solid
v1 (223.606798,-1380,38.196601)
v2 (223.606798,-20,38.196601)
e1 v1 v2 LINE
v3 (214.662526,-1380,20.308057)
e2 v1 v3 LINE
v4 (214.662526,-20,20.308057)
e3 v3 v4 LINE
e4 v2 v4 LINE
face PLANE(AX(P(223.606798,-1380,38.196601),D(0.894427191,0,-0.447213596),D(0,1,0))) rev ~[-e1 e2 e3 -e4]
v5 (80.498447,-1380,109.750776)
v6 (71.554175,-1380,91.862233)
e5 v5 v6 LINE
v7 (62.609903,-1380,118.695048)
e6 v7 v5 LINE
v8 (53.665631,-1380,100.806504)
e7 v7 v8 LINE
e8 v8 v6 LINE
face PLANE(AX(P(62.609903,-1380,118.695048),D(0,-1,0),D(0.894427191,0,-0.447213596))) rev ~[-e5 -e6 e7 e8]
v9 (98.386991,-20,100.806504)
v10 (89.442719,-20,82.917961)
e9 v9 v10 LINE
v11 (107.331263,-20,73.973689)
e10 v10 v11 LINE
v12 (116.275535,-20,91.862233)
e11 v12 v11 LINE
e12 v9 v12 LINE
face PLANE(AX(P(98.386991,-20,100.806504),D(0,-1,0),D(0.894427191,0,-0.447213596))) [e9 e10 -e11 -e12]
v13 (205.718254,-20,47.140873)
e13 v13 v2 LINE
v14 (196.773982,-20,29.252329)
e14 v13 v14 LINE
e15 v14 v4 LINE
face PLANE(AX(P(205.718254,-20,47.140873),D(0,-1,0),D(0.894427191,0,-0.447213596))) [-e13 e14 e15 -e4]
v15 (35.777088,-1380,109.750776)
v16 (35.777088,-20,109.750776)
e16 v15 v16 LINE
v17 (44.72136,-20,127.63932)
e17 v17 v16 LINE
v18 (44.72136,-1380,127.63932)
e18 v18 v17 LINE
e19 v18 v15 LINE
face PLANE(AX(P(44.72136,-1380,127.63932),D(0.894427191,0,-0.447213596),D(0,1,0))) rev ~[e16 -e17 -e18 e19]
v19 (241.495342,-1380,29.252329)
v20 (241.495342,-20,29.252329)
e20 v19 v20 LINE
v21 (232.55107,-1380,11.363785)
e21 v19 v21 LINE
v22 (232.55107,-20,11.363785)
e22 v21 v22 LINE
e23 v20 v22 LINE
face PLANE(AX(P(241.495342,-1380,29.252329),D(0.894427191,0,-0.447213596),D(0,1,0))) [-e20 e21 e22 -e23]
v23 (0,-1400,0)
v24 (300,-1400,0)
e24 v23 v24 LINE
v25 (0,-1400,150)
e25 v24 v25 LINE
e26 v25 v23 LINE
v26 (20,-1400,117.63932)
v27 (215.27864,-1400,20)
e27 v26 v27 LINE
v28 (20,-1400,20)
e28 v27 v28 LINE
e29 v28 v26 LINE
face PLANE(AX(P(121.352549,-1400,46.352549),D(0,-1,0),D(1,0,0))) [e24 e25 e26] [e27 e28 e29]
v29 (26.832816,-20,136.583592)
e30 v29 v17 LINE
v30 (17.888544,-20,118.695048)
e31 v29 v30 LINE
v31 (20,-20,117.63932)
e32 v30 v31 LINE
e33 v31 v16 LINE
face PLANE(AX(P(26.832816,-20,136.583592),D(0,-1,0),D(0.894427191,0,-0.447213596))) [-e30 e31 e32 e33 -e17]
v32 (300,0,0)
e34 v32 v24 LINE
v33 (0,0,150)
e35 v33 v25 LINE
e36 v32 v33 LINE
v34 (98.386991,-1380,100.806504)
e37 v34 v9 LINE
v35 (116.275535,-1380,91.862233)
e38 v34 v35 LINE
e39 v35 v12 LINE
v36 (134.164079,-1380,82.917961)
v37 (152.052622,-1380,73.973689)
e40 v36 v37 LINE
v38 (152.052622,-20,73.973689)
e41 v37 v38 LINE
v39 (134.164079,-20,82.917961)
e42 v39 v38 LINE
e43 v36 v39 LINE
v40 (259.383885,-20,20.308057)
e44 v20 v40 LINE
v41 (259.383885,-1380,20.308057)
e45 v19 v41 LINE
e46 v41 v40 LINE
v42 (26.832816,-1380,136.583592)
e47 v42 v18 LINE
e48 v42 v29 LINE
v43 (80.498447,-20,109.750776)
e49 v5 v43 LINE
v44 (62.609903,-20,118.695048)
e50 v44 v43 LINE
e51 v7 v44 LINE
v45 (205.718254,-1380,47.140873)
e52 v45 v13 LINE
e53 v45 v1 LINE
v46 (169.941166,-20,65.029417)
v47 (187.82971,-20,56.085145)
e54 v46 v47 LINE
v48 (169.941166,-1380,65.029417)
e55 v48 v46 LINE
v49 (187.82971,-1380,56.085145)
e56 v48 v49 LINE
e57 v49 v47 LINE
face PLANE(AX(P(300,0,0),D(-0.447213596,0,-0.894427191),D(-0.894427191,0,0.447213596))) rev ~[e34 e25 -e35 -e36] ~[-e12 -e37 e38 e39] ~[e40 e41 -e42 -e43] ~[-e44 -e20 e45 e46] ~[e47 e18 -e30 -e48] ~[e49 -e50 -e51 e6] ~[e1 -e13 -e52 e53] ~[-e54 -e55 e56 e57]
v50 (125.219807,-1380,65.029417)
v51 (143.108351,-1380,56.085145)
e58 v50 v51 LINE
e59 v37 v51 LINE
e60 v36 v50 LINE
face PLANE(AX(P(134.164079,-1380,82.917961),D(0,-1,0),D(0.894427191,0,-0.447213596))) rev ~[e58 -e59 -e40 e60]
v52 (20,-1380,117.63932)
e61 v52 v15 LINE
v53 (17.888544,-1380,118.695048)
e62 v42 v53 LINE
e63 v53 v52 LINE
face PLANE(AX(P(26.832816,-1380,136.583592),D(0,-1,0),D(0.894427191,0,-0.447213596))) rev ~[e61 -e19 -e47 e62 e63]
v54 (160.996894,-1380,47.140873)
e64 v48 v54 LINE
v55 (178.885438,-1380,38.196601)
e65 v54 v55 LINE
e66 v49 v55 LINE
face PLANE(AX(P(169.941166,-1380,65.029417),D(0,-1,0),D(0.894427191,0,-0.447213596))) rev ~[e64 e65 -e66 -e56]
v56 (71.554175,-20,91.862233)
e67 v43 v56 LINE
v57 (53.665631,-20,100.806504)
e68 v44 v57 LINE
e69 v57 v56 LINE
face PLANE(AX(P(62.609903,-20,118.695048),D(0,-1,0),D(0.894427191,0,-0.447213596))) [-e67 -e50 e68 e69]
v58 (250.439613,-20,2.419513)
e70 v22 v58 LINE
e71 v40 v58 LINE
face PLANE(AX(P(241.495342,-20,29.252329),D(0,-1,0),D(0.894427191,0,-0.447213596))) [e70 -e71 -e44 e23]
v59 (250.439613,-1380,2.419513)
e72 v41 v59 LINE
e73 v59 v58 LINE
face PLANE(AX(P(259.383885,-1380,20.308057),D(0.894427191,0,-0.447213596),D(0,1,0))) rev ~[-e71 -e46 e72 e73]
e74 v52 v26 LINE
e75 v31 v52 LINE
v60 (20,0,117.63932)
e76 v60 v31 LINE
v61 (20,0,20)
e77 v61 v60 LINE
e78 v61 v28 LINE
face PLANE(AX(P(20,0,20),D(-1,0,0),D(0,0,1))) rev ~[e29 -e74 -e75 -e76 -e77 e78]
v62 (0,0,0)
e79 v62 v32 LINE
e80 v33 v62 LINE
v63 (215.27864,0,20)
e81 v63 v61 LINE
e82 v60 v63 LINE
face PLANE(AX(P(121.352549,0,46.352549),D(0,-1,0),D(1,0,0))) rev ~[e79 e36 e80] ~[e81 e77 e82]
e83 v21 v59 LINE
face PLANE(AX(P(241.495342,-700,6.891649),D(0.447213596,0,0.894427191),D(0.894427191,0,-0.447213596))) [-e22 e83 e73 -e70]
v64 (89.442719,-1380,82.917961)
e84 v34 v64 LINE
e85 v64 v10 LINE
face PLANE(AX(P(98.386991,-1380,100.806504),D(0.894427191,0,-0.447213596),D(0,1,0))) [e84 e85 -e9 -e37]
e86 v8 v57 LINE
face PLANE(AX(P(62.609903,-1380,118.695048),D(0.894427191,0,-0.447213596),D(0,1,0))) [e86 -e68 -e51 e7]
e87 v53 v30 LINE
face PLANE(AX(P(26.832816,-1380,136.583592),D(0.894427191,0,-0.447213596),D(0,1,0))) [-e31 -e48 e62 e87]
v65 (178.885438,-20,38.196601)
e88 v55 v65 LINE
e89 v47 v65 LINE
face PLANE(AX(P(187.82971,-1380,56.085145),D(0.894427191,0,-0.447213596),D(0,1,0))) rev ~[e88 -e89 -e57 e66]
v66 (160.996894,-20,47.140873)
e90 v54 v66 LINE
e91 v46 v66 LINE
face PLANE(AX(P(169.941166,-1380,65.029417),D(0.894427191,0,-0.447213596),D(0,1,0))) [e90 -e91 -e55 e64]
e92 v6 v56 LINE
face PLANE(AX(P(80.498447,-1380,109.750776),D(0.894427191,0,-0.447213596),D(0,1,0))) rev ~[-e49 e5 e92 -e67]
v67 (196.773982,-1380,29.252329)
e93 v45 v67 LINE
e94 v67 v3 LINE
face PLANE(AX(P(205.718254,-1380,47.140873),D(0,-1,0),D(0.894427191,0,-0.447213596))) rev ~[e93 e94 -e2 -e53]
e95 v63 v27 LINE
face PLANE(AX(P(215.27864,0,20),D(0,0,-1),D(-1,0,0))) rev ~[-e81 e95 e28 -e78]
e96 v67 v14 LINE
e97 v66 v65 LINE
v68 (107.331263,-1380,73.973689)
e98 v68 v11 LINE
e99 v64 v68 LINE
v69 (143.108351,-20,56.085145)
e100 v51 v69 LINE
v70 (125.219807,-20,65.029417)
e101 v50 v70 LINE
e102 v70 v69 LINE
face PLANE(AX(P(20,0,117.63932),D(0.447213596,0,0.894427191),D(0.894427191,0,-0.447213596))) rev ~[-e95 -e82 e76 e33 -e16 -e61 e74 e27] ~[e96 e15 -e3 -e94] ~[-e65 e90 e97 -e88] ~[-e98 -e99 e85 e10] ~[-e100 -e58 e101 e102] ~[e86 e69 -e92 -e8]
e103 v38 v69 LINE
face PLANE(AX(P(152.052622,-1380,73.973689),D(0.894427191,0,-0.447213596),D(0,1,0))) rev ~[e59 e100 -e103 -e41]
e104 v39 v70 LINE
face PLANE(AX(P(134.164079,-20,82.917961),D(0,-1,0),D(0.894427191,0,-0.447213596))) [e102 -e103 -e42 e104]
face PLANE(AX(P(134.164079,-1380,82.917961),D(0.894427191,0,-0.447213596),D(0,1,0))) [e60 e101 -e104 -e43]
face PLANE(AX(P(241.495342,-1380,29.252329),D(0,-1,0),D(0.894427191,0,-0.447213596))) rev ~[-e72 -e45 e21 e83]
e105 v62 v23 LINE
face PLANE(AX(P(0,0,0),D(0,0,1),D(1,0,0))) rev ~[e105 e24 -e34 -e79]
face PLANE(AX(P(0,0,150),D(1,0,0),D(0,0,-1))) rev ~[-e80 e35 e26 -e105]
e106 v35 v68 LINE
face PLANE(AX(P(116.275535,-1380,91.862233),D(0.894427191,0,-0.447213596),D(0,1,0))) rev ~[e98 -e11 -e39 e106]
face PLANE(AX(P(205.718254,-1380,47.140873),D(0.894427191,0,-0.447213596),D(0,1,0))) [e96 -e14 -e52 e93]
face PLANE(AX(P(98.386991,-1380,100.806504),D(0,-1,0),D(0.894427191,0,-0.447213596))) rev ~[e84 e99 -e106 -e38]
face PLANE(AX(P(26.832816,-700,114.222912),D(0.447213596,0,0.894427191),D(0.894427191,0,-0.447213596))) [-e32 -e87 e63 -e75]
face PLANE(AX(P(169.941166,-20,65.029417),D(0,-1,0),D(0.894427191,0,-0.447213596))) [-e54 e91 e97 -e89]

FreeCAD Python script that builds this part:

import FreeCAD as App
import Part
import Sketcher

V = App.Vector

doc = App.newDocument("Part")
params = doc.addObject("Spreadsheet::Sheet", "Params")
for row, (alias, value) in enumerate([
    ("sketch1_width", "300 mm"),
    ("sketch1_height", "150 mm"),
    ("pad1_length", "1400 mm"),
    ("sketch2_width", "20 mm"),
    ("sketch2_height", "1359.999999 mm"),
    ("pocket1_length", "20 mm"),
], start=1):
    params.set(f"A{row}", alias)
    params.set(f"B{row}", "=" + value)
    params.setAlias(f"B{row}", alias)

body = doc.addObject("PartDesign::Body", "Body")

# Sketch on XZ plane
sketch1 = body.newObject("Sketcher::SketchObject", "Sketch")
sketch1.AttachmentSupport = (doc.getObject("XZ_Plane"), [""])
sketch1.MapMode = "FlatFace"
sketch1.addGeometry(Part.LineSegment(V(0, 150, 0), V(0, 0, 0)), False)
sketch1.addGeometry(Part.LineSegment(V(0, 0, 0), V(300, 0, 0)), False)
sketch1.addGeometry(Part.LineSegment(V(300, 0, 0), V(0, 150, 0)), False)
sketch1.addGeometry(Part.LineSegment(V(20, 117.63932, 0), V(215.27864, 20, 0)), False)
sketch1.addGeometry(Part.LineSegment(V(215.27864, 20, 0), V(20, 20, 0)), False)
sketch1.addGeometry(Part.LineSegment(V(20, 20, 0), V(20, 117.63932, 0)), False)
sketch1.addConstraint(Sketcher.Constraint("Coincident", 0, 2, 1, 1))
sketch1.addConstraint(Sketcher.Constraint("Coincident", 1, 2, 2, 1))
sketch1.addConstraint(Sketcher.Constraint("Coincident", 2, 2, 0, 1))
sketch1.addConstraint(Sketcher.Constraint("Coincident", 3, 2, 4, 1))
sketch1.addConstraint(Sketcher.Constraint("Coincident", 4, 2, 5, 1))
sketch1.addConstraint(Sketcher.Constraint("Coincident", 5, 2, 3, 1))
sketch1.addConstraint(Sketcher.Constraint("Vertical", 0))
sketch1.addConstraint(Sketcher.Constraint("Horizontal", 1))
sketch1.addConstraint(Sketcher.Constraint("Horizontal", 4))
sketch1.addConstraint(Sketcher.Constraint("Vertical", 5))
sketch1.addConstraint(Sketcher.Constraint("Coincident", 0, 2, -1, 1))
sketch1.addConstraint(Sketcher.Constraint("Parallel", 2, 3))
sketch1.addConstraint(Sketcher.Constraint("DistanceX", 1, 1, 1, 2, 300.0))
sketch1.addConstraint(Sketcher.Constraint("DistanceY", 0, 2, 0, 1, 150.0))
sketch1.addConstraint(Sketcher.Constraint("DistanceY", -1, 1, 3, 2, 20.0))
sketch1.addConstraint(Sketcher.Constraint("DistanceX", -1, 1, 4, 2, 20.0))
sketch1.addConstraint(Sketcher.Constraint("DistanceX", 4, 2, 4, 1, 195.27864))
sketch1.setExpression("Constraints[12]", "Params.sketch1_width")
sketch1.setExpression("Constraints[13]", "Params.sketch1_height")
pad1 = body.newObject("PartDesign::Pad", "Pad")
pad1.Profile = sketch1
pad1.setExpression("Length", "Params.pad1_length")

# Sketch on an angled plane
sketch2 = body.newObject("Sketcher::SketchObject", "Sketch001")
sketch2.Placement = App.Placement(V(60, 0, 120), App.Rotation(V(0.894427191, 0, -0.447213595), V(0, 1, 0), V(0.447213595, 0, 0.894427191), "ZXY"))
sketch2.addGeometry(Part.LineSegment(V(-37.082039, -20, 0), V(-37.082039, -1379.999999, 0)), False)
sketch2.addGeometry(Part.LineSegment(V(-37.082039, -1379.999999, 0), V(-17.082039, -1379.999999, 0)), False)
sketch2.addGeometry(Part.LineSegment(V(-17.082039, -1379.999999, 0), V(-17.082039, -20, 0)), False)
sketch2.addGeometry(Part.LineSegment(V(-17.082039, -20, 0), V(-37.082039, -20, 0)), False)
sketch2.addGeometry(Part.LineSegment(V(2.917961, -20, 0), V(2.917961, -1379.999999, 0)), False)
sketch2.addGeometry(Part.LineSegment(V(2.917961, -1379.999999, 0), V(22.917961, -1379.999999, 0)), False)
sketch2.addGeometry(Part.LineSegment(V(22.917961, -1379.999999, 0), V(22.917961, -20, 0)), False)
sketch2.addGeometry(Part.LineSegment(V(22.917961, -20, 0), V(2.917961, -20, 0)), False)
sketch2.addGeometry(Part.LineSegment(V(42.917961, -20, 0), V(42.917961, -1379.999999, 0)), False)
sketch2.addGeometry(Part.LineSegment(V(42.917961, -1379.999999, 0), V(62.917961, -1379.999999, 0)), False)
sketch2.addGeometry(Part.LineSegment(V(62.917961, -1379.999999, 0), V(62.917961, -20, 0)), False)
sketch2.addGeometry(Part.LineSegment(V(62.917961, -20, 0), V(42.917961, -20, 0)), False)
sketch2.addGeometry(Part.LineSegment(V(82.917961, -20, 0), V(82.917961, -1379.999999, 0)), False)
sketch2.addGeometry(Part.LineSegment(V(82.917961, -1379.999999, 0), V(102.917961, -1379.999999, 0)), False)
sketch2.addGeometry(Part.LineSegment(V(102.917961, -1379.999999, 0), V(102.917961, -20, 0)), False)
sketch2.addGeometry(Part.LineSegment(V(102.917961, -20, 0), V(82.917961, -20, 0)), False)
sketch2.addGeometry(Part.LineSegment(V(122.917961, -20, 0), V(122.917961, -1379.999999, 0)), False)
sketch2.addGeometry(Part.LineSegment(V(122.917961, -1379.999999, 0), V(142.917961, -1379.999999, 0)), False)
sketch2.addGeometry(Part.LineSegment(V(142.917961, -1379.999999, 0), V(142.917961, -20, 0)), False)
sketch2.addGeometry(Part.LineSegment(V(142.917961, -20, 0), V(122.917961, -20, 0)), False)
sketch2.addGeometry(Part.LineSegment(V(162.917961, -20, 0), V(162.917961, -1379.999999, 0)), False)
sketch2.addGeometry(Part.LineSegment(V(162.917961, -1379.999999, 0), V(182.917961, -1379.999999, 0)), False)
sketch2.addGeometry(Part.LineSegment(V(182.917961, -1379.999999, 0), V(182.917961, -20, 0)), False)
sketch2.addGeometry(Part.LineSegment(V(182.917961, -20, 0), V(162.917961, -20, 0)), False)
sketch2.addGeometry(Part.LineSegment(V(202.917961, -20, 0), V(202.917961, -1379.999999, 0)), False)
sketch2.addGeometry(Part.LineSegment(V(202.917961, -1379.999999, 0), V(222.917961, -1379.999999, 0)), False)
sketch2.addGeometry(Part.LineSegment(V(222.917961, -1379.999999, 0), V(222.917961, -20, 0)), False)
sketch2.addGeometry(Part.LineSegment(V(222.917961, -20, 0), V(202.917961, -20, 0)), False)
sketch2.addConstraint(Sketcher.Constraint("Coincident", 0, 2, 1, 1))
sketch2.addConstraint(Sketcher.Constraint("Coincident", 1, 2, 2, 1))
sketch2.addConstraint(Sketcher.Constraint("Coincident", 2, 2, 3, 1))
sketch2.addConstraint(Sketcher.Constraint("Coincident", 3, 2, 0, 1))
sketch2.addConstraint(Sketcher.Constraint("Coincident", 4, 2, 5, 1))
sketch2.addConstraint(Sketcher.Constraint("Coincident", 5, 2, 6, 1))
sketch2.addConstraint(Sketcher.Constraint("Coincident", 6, 2, 7, 1))
sketch2.addConstraint(Sketcher.Constraint("Coincident", 7, 2, 4, 1))
sketch2.addConstraint(Sketcher.Constraint("Coincident", 8, 2, 9, 1))
sketch2.addConstraint(Sketcher.Constraint("Coincident", 9, 2, 10, 1))
sketch2.addConstraint(Sketcher.Constraint("Coincident", 10, 2, 11, 1))
sketch2.addConstraint(Sketcher.Constraint("Coincident", 11, 2, 8, 1))
sketch2.addConstraint(Sketcher.Constraint("Coincident", 12, 2, 13, 1))
sketch2.addConstraint(Sketcher.Constraint("Coincident", 13, 2, 14, 1))
sketch2.addConstraint(Sketcher.Constraint("Coincident", 14, 2, 15, 1))
sketch2.addConstraint(Sketcher.Constraint("Coincident", 15, 2, 12, 1))
sketch2.addConstraint(Sketcher.Constraint("Coincident", 16, 2, 17, 1))
sketch2.addConstraint(Sketcher.Constraint("Coincident", 17, 2, 18, 1))
sketch2.addConstraint(Sketcher.Constraint("Coincident", 18, 2, 19, 1))
sketch2.addConstraint(Sketcher.Constraint("Coincident", 19, 2, 16, 1))
sketch2.addConstraint(Sketcher.Constraint("Coincident", 20, 2, 21, 1))
sketch2.addConstraint(Sketcher.Constraint("Coincident", 21, 2, 22, 1))
sketch2.addConstraint(Sketcher.Constraint("Coincident", 22, 2, 23, 1))
sketch2.addConstraint(Sketcher.Constraint("Coincident", 23, 2, 20, 1))
sketch2.addConstraint(Sketcher.Constraint("Coincident", 24, 2, 25, 1))
sketch2.addConstraint(Sketcher.Constraint("Coincident", 25, 2, 26, 1))
sketch2.addConstraint(Sketcher.Constraint("Coincident", 26, 2, 27, 1))
sketch2.addConstraint(Sketcher.Constraint("Coincident", 27, 2, 24, 1))
sketch2.addConstraint(Sketcher.Constraint("Vertical", 0))
sketch2.addConstraint(Sketcher.Constraint("Horizontal", 1))
sketch2.addConstraint(Sketcher.Constraint("Vertical", 2))
sketch2.addConstraint(Sketcher.Constraint("Horizontal", 3))
sketch2.addConstraint(Sketcher.Constraint("Vertical", 4))
sketch2.addConstraint(Sketcher.Constraint("Horizontal", 5))
sketch2.addConstraint(Sketcher.Constraint("Vertical", 6))
sketch2.addConstraint(Sketcher.Constraint("Horizontal", 7))
sketch2.addConstraint(Sketcher.Constraint("Vertical", 8))
sketch2.addConstraint(Sketcher.Constraint("Horizontal", 9))
sketch2.addConstraint(Sketcher.Constraint("Vertical", 10))
sketch2.addConstraint(Sketcher.Constraint("Horizontal", 11))
sketch2.addConstraint(Sketcher.Constraint("Vertical", 12))
sketch2.addConstraint(Sketcher.Constraint("Horizontal", 13))
sketch2.addConstraint(Sketcher.Constraint("Vertical", 14))
sketch2.addConstraint(Sketcher.Constraint("Horizontal", 15))
sketch2.addConstraint(Sketcher.Constraint("Vertical", 16))
sketch2.addConstraint(Sketcher.Constraint("Horizontal", 17))
sketch2.addConstraint(Sketcher.Constraint("Vertical", 18))
sketch2.addConstraint(Sketcher.Constraint("Horizontal", 19))
sketch2.addConstraint(Sketcher.Constraint("Vertical", 20))
sketch2.addConstraint(Sketcher.Constraint("Horizontal", 21))
sketch2.addConstraint(Sketcher.Constraint("Vertical", 22))
sketch2.addConstraint(Sketcher.Constraint("Horizontal", 23))
sketch2.addConstraint(Sketcher.Constraint("Vertical", 24))
sketch2.addConstraint(Sketcher.Constraint("Horizontal", 25))
sketch2.addConstraint(Sketcher.Constraint("Vertical", 26))
sketch2.addConstraint(Sketcher.Constraint("Horizontal", 27))
sketch2.addConstraint(Sketcher.Constraint("Horizontal", 1, 2, 4, 2))
sketch2.addConstraint(Sketcher.Constraint("Horizontal", 3, 2, 6, 2))
sketch2.addConstraint(Sketcher.Constraint("Horizontal", 5, 2, 8, 2))
sketch2.addConstraint(Sketcher.Constraint("Horizontal", 7, 2, 10, 2))
sketch2.addConstraint(Sketcher.Constraint("Horizontal", 9, 2, 12, 2))
sketch2.addConstraint(Sketcher.Constraint("Horizontal", 11, 2, 14, 2))
sketch2.addConstraint(Sketcher.Constraint("Horizontal", 13, 2, 16, 2))
sketch2.addConstraint(Sketcher.Constraint("Horizontal", 15, 2, 18, 2))
sketch2.addConstraint(Sketcher.Constraint("Horizontal", 17, 2, 20, 2))
sketch2.addConstraint(Sketcher.Constraint("Horizontal", 19, 2, 22, 2))
sketch2.addConstraint(Sketcher.Constraint("Horizontal", 21, 2, 24, 2))
sketch2.addConstraint(Sketcher.Constraint("Horizontal", 23, 2, 26, 2))
sketch2.addConstraint(Sketcher.Constraint("Equal", 3, 5))
sketch2.addConstraint(Sketcher.Constraint("Equal", 7, 9))
sketch2.addConstraint(Sketcher.Constraint("Equal", 11, 13))
sketch2.addConstraint(Sketcher.Constraint("Equal", 15, 17))
sketch2.addConstraint(Sketcher.Constraint("Equal", 19, 21))
sketch2.addConstraint(Sketcher.Constraint("Equal", 23, 25))
sketch2.addConstraint(Sketcher.Constraint("DistanceX", 1, 1, 1, 2, 20.0))
sketch2.addConstraint(Sketcher.Constraint("DistanceY", 0, 2, 0, 1, 1359.999999))
sketch2.addConstraint(Sketcher.Constraint("DistanceY", 0, 2, -1, 1, 1379.999999))
sketch2.addConstraint(Sketcher.Constraint("DistanceX", 1, 2, 4, 2, 20.0))
sketch2.addConstraint(Sketcher.Constraint("DistanceX", 5, 2, 8, 2, 20.0))
sketch2.addConstraint(Sketcher.Constraint("DistanceX", 9, 2, 12, 2, 20.0))
sketch2.addConstraint(Sketcher.Constraint("DistanceX", 13, 2, 16, 2, 20.0))
sketch2.addConstraint(Sketcher.Constraint("DistanceX", 17, 2, 20, 2, 20.0))
sketch2.addConstraint(Sketcher.Constraint("DistanceX", 21, 2, 24, 2, 20.0))
sketch2.addConstraint(Sketcher.Constraint("DistanceX", 0, 2, -1, 1, 37.082039))
sketch2.setExpression("Constraints[74]", "Params.sketch2_width")
sketch2.setExpression("Constraints[75]", "Params.sketch2_height")
pocket1 = body.newObject("PartDesign::Pocket", "Pocket")
pocket1.Profile = sketch2
pocket1.setExpression("Length", "Params.pocket1_length")

doc.recompute()
